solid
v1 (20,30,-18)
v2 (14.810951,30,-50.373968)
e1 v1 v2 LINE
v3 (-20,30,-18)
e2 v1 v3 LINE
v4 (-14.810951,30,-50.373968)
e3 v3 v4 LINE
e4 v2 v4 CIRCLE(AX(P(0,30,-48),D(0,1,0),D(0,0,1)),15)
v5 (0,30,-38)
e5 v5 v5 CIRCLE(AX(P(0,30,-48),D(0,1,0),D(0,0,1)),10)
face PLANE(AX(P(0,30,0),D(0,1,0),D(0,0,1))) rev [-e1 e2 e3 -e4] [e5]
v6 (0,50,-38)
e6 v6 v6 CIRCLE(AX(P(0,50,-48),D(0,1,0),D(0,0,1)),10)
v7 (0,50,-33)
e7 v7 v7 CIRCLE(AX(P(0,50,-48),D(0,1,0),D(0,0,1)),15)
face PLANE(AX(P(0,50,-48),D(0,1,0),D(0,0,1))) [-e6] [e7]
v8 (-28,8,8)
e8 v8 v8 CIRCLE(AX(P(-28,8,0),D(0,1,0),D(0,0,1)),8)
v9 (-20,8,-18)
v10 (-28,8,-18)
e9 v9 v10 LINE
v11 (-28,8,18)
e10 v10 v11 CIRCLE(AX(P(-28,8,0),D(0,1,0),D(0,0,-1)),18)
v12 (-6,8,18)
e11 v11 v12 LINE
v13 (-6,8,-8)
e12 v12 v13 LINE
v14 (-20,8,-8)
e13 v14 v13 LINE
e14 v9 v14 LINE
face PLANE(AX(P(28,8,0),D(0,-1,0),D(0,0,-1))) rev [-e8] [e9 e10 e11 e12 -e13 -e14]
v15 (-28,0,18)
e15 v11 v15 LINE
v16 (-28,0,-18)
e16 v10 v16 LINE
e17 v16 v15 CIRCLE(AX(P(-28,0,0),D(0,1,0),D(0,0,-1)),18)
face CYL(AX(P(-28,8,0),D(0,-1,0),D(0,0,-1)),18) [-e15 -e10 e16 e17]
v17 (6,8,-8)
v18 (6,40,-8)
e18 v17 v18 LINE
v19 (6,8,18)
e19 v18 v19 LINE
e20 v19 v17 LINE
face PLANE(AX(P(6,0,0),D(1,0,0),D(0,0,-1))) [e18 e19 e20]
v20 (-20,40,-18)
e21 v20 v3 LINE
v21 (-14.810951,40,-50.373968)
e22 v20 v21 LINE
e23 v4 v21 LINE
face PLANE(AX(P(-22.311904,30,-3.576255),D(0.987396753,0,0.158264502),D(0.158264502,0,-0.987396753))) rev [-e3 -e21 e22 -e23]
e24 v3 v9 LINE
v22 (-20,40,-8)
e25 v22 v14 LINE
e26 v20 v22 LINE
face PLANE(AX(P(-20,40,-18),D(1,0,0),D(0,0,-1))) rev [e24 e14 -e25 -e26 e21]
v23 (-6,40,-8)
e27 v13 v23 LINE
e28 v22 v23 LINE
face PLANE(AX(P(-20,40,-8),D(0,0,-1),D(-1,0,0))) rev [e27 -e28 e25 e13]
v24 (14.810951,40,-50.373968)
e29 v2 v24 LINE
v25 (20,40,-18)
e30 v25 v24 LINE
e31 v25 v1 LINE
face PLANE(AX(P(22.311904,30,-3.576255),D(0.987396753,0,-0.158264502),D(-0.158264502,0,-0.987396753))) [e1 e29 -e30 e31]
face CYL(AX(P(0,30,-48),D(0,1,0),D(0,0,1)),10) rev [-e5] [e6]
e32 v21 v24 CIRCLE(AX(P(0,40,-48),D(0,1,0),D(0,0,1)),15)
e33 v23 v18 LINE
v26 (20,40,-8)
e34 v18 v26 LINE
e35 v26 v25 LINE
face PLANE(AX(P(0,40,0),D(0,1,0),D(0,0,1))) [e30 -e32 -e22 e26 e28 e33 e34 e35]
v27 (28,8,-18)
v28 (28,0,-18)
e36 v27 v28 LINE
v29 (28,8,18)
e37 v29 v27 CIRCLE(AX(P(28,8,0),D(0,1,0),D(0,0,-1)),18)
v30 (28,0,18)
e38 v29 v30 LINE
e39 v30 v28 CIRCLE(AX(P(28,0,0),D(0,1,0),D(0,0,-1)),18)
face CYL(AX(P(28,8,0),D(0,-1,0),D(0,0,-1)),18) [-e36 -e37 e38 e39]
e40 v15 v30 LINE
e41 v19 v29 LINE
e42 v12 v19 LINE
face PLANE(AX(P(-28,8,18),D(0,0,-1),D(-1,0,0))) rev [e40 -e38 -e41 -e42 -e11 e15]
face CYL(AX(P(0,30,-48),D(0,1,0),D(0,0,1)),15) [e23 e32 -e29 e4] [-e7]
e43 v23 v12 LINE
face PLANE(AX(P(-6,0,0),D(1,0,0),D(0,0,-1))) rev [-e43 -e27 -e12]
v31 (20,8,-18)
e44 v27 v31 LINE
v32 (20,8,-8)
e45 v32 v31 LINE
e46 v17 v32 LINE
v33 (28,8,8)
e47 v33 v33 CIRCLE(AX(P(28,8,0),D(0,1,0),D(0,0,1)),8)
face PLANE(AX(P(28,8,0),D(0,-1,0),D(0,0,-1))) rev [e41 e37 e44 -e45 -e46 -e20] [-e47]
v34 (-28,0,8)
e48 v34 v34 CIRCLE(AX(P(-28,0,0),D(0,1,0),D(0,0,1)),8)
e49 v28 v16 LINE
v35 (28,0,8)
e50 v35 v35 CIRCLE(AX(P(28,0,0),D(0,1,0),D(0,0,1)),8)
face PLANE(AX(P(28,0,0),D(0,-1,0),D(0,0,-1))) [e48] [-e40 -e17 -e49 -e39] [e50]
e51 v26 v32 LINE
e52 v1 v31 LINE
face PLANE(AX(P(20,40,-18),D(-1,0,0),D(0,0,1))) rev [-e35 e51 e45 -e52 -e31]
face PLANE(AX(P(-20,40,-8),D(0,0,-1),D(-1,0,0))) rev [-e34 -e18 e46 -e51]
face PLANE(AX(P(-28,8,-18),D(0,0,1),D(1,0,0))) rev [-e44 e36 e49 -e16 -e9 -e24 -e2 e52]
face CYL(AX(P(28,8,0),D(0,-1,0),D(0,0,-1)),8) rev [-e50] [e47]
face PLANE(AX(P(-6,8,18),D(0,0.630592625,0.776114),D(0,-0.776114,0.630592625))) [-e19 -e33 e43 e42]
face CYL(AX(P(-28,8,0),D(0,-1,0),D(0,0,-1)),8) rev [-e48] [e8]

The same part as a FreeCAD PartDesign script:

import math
import FreeCAD as App
import Part
import Sketcher


def add_polygon(sketch, points):
    """Adds a closed chain of lines whose ends are joined by coincident constraints."""
    first, n = sketch.GeometryCount, len(points)
    for a, b in zip(points, points[1:] + points[:1]):
        sketch.addGeometry(Part.LineSegment(App.Vector(*a, 0), App.Vector(*b, 0)), False)
    for i in range(n):
        sketch.addConstraint(Sketcher.Constraint("Coincident", first + i, 2, first + (i + 1) % n, 1))

doc = App.newDocument("Part")
body = doc.addObject("PartDesign::Body", "Body")

# Sketch on XZ plane
sketch1 = body.newObject("Sketcher::SketchObject", "Sketch")
sketch1.AttachmentSupport = (doc.getObject("XZ_Plane"), [""])
sketch1.MapMode = "FlatFace"
sketch1.addGeometry(Part.LineSegment(App.Vector(28, -18, 0), App.Vector(-28, -18, 0)), False)
sketch1.addGeometry(Part.ArcOfCircle(Part.Circle(App.Vector(-28, 0, 0), App.Vector(0, 0, 1), 18), math.radians(90), math.radians(270)), False)
sketch1.addGeometry(Part.LineSegment(App.Vector(-28, 18, 0), App.Vector(28, 18, 0)), False)
sketch1.addGeometry(Part.ArcOfCircle(Part.Circle(App.Vector(28, 0, 0), App.Vector(0, 0, 1), 18), math.radians(-90), math.radians(90)), False)
sketch1.addGeometry(Part.Circle(App.Vector(28, 0, 0), App.Vector(0, 0, 1), 8), False)
sketch1.addGeometry(Part.Circle(App.Vector(-28, 0, 0), App.Vector(0, 0, 1), 8), False)
sketch1.addConstraint(Sketcher.Constraint("Tangent", 0, 2, 1, 2))
sketch1.addConstraint(Sketcher.Constraint("Tangent", 1, 1, 2, 1))
sketch1.addConstraint(Sketcher.Constraint("Tangent", 2, 2, 3, 2))
sketch1.addConstraint(Sketcher.Constraint("Tangent", 3, 1, 0, 1))
sketch1.addConstraint(Sketcher.Constraint("Horizontal", 0))
sketch1.addConstraint(Sketcher.Constraint("Horizontal", 2))
sketch1.addConstraint(Sketcher.Constraint("Coincident", 4, 3, 3, 3))
sketch1.addConstraint(Sketcher.Constraint("Coincident", 5, 3, 1, 3))
sketch1.addConstraint(Sketcher.Constraint("Equal", 4, 5))
sketch1.addConstraint(Sketcher.Constraint("Symmetric", 1, 3, 3, 3, -1, 1))
sketch1.addConstraint(Sketcher.Constraint("Diameter", 4, 16.0))
sketch1.addConstraint(Sketcher.Constraint("Radius", 1, 18.0))
sketch1.addConstraint(Sketcher.Constraint("DistanceX", 0, 2, 0, 1, 56.0))
pad1 = body.newObject("PartDesign::Pad", "Pad")
pad1.Profile = sketch1
pad1.Length = 8
pad1.Reversed = True

# Sketch on XZ plane
sketch2 = body.newObject("Sketcher::SketchObject", "Sketch001")
sketch2.AttachmentSupport = (doc.getObject("XZ_Plane"), [""])
sketch2.MapMode = "FlatFace"
sketch2.AttachmentOffset = App.Placement(App.Vector(0, 0, -8), App.Rotation())
add_polygon(sketch2, [(-20, -18), (-20, -8), (20, -8), (20, -18)])  # lines 0-3
sketch2.addConstraint(Sketcher.Constraint("Vertical", 0))
sketch2.addConstraint(Sketcher.Constraint("Horizontal", 1))
sketch2.addConstraint(Sketcher.Constraint("Vertical", 2))
sketch2.addConstraint(Sketcher.Constraint("Horizontal", 3))
sketch2.addConstraint(Sketcher.Constraint("DistanceX", 1, 1, 1, 2, 40.0))
sketch2.addConstraint(Sketcher.Constraint("DistanceY", 0, 1, 0, 2, 10.0))
sketch2.addConstraint(Sketcher.Constraint("DistanceX", 0, 2, -1, 1, 20.0))
sketch2.addConstraint(Sketcher.Constraint("DistanceY", 0, 2, -1, 1, 8.0))
pad2 = body.newObject("PartDesign::Pad", "Pad001")
pad2.Profile = sketch2
pad2.Length = 32
pad2.Reversed = True

# Sketch on YZ plane
sketch3 = body.newObject("Sketcher::SketchObject", "Sketch002")
sketch3.AttachmentSupport = (doc.getObject("YZ_Plane"), [""])
sketch3.MapMode = "FlatFace"
add_polygon(sketch3, [(8, -8), (40, -8), (8, 18)])  # lines 0-2
sketch3.addConstraint(Sketcher.Constraint("Horizontal", 0))
sketch3.addConstraint(Sketcher.Constraint("Vertical", 2))
sketch3.addConstraint(Sketcher.Constraint("DistanceX", 0, 1, 0, 2, 32.0))
sketch3.addConstraint(Sketcher.Constraint("DistanceY", 2, 2, 2, 1, 26.0))
sketch3.addConstraint(Sketcher.Constraint("DistanceX", -1, 1, 0, 2, 40.0))
sketch3.addConstraint(Sketcher.Constraint("DistanceY", 0, 2, -1, 1, 8.0))
pad3 = body.newObject("PartDesign::Pad", "Pad002")
pad3.Profile = sketch3
pad3.Type = "TwoLengths"
pad3.Length = 6
pad3.Length2 = 6

# Sketch on XZ plane
sketch4 = body.newObject("Sketcher::SketchObject", "Sketch003")
sketch4.AttachmentSupport = (doc.getObject("XZ_Plane"), [""])
sketch4.MapMode = "FlatFace"
sketch4.AttachmentOffset = App.Placement(App.Vector(0, 0, -40), App.Rotation())
sketch4.addGeometry(Part.LineSegment(App.Vector(20, -18, 0), App.Vector(15, -50, 0)), False)
sketch4.addGeometry(Part.ArcOfCircle(Part.Circle(App.Vector(0, -48, 0), App.Vector(0, 0, 1), 15), math.radians(-171), math.radians(-9)), False)
sketch4.addGeometry(Part.LineSegment(App.Vector(-15, -50, 0), App.Vector(-20, -18, 0)), False)
sketch4.addGeometry(Part.LineSegment(App.Vector(-20, -18, 0), App.Vector(20, -18, 0)), False)
sketch4.addGeometry(Part.Circle(App.Vector(0, -48, 0), App.Vector(0, 0, 1), 10), False)
sketch4.addConstraint(Sketcher.Constraint("Tangent", 0, 2, 1, 2))
sketch4.addConstraint(Sketcher.Constraint("Tangent", 1, 1, 2, 1))
sketch4.addConstraint(Sketcher.Constraint("Coincident", 2, 2, 3, 1))
sketch4.addConstraint(Sketcher.Constraint("Coincident", 3, 2, 0, 1))
sketch4.addConstraint(Sketcher.Constraint("Horizontal", 3))
sketch4.addConstraint(Sketcher.Constraint("Coincident", 4, 3, 1, 3))
sketch4.addConstraint(Sketcher.Constraint("Symmetric", 0, 2, 1, 1, -2))
sketch4.addConstraint(Sketcher.Constraint("Diameter", 4, 20.0))
sketch4.addConstraint(Sketcher.Constraint("Radius", 1, 15.0))
sketch4.addConstraint(Sketcher.Constraint("DistanceX", 3, 1, 3, 2, 40.0))
sketch4.addConstraint(Sketcher.Constraint("DistanceY", 1, 3, -1, 1, 48.0))
sketch4.addConstraint(Sketcher.Constraint("DistanceY", 2, 2, -1, 1, 18.0))
pad4 = body.newObject("PartDesign::Pad", "Pad003")
pad4.Profile = sketch4
pad4.Length = 10

# Sketch on XZ plane
sketch5 = body.newObject("Sketcher::SketchObject", "Sketch004")
sketch5.AttachmentSupport = (doc.getObject("XZ_Plane"), [""])
sketch5.MapMode = "FlatFace"
sketch5.AttachmentOffset = App.Placement(App.Vector(0, 0, -50), App.Rotation())
sketch5.addGeometry(Part.Circle(App.Vector(0, -48, 0), App.Vector(0, 0, 1), 15), False)
sketch5.addGeometry(Part.Circle(App.Vector(0, -48, 0), App.Vector(0, 0, 1), 10), False)
sketch5.addConstraint(Sketcher.Constraint("Coincident", 1, 3, 0, 3))
sketch5.addConstraint(Sketcher.Constraint("PointOnObject", 0, 3, -2))
sketch5.addConstraint(Sketcher.Constraint("Diameter", 0, 30.0))
sketch5.addConstraint(Sketcher.Constraint("Diameter", 1, 20.0))
sketch5.addConstraint(Sketcher.Constraint("DistanceY", 0, 3, -1, 1, 48.0))
pad5 = body.newObject("PartDesign::Pad", "Pad004")
pad5.Profile = sketch5
pad5.Length = 10

doc.recompute()
